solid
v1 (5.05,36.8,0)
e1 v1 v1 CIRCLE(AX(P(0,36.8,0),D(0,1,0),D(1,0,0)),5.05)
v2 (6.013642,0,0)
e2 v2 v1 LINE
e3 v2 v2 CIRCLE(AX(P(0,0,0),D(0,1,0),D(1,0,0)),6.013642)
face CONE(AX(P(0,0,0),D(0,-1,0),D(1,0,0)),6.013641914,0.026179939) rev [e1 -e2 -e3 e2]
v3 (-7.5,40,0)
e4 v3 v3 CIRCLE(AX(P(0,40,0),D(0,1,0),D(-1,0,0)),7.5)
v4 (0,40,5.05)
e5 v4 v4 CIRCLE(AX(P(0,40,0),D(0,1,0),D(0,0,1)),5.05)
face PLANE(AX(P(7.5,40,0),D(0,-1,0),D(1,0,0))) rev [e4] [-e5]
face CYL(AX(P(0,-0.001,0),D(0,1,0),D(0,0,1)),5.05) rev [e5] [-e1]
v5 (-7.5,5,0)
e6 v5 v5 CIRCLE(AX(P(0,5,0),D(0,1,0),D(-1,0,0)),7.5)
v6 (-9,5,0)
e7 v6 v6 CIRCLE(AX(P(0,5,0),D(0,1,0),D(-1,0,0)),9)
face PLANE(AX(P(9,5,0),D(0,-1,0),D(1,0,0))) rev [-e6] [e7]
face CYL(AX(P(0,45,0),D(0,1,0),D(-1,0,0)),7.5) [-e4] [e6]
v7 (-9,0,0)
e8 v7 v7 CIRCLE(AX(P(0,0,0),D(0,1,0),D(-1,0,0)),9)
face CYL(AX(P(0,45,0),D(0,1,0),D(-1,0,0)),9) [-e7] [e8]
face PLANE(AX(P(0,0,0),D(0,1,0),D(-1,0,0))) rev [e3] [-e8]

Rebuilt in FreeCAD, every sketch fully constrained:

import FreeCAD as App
import Part
import Sketcher
Q = App.Units.Quantity

doc = App.newDocument("Part")
params = doc.addObject("Spreadsheet::Sheet", "Params")
for row, (alias, value) in enumerate([
    ("sketch1_width", "9 mm"),
    ("sketch1_height", "5 mm"),
    ("sketch1_height2", "35 mm"),
    ("sketch1_width2", "1.5 mm"),
    ("revolution_angle", "360 deg"),
    ("sketch2_diameter", "10.1 mm"),
    ("sketch3_height", "36.8 mm"),
    ("sketch4_diameter", "10.1 mm"),
], start=1):
    params.set(f"A{row}", alias)
    params.set(f"B{row}", "=" + value)
    params.setAlias(f"B{row}", alias)

body = doc.addObject("PartDesign::Body", "Body")

# Sketch on XY plane
sketch1 = body.newObject("Sketcher::SketchObject", "Sketch")
sketch1.AttachmentSupport = (doc.getObject("XY_Plane"), [""])
sketch1.MapMode = "FlatFace"
sketch1.addGeometry([
    Part.LineSegment(App.Vector(0, 0, 0), App.Vector(9, 0, 0)),  # 0
    Part.LineSegment(App.Vector(9, 0, 0), App.Vector(9, 5, 0)),  # 1
    Part.LineSegment(App.Vector(9, 5, 0), App.Vector(7.5, 5, 0)),  # 2
    Part.LineSegment(App.Vector(7.5, 5, 0), App.Vector(7.5, 40, 0)),  # 3
    Part.LineSegment(App.Vector(7.5, 40, 0), App.Vector(0, 40, 0)),  # 4
    Part.LineSegment(App.Vector(0, 40, 0), App.Vector(0, 0, 0)),  # 5
], False)
sketch1.addConstraint([
    Sketcher.Constraint("Coincident", 0, 2, 1, 1),
    Sketcher.Constraint("Coincident", 1, 2, 2, 1),
    Sketcher.Constraint("Coincident", 2, 2, 3, 1),
    Sketcher.Constraint("Coincident", 3, 2, 4, 1),
    Sketcher.Constraint("Coincident", 4, 2, 5, 1),
    Sketcher.Constraint("Coincident", 5, 2, 0, 1),
    Sketcher.Constraint("Horizontal", 0),
    Sketcher.Constraint("Vertical", 1),
    Sketcher.Constraint("Horizontal", 2),
    Sketcher.Constraint("Vertical", 3),
    Sketcher.Constraint("Horizontal", 4),
    Sketcher.Constraint("Vertical", 5),
    Sketcher.Constraint("Coincident", 5, 2, -1, 1),
    Sketcher.Constraint("DistanceX", 0, 1, 0, 2, Q("9 mm")),
    Sketcher.Constraint("DistanceY", 1, 1, 1, 2, Q("5 mm")),
    Sketcher.Constraint("DistanceY", 3, 1, 3, 2, Q("35 mm")),
    Sketcher.Constraint("DistanceX", 2, 2, 2, 1, Q("1.5 mm")),
])
sketch1.setExpression("Constraints[13]", "Params.sketch1_width")
sketch1.setExpression("Constraints[14]", "Params.sketch1_height")
sketch1.setExpression("Constraints[15]", "Params.sketch1_height2")
sketch1.setExpression("Constraints[16]", "Params.sketch1_width2")
revolution = body.newObject("PartDesign::Revolution", "Revolution")
revolution.Profile = sketch1
revolution.ReferenceAxis = (sketch1, ["V_Axis"])
revolution.setExpression("Angle", "Params.revolution_angle")

# Sketch on XZ plane
sketch2 = body.newObject("Sketcher::SketchObject", "Sketch001")
sketch2.AttachmentSupport = (doc.getObject("XZ_Plane"), [""])
sketch2.MapMode = "FlatFace"
sketch2.AttachmentOffset = App.Placement(App.Vector(0, 0, -40), App.Rotation())
sketch2.addGeometry(Part.Circle(App.Vector(0, 0, 0), App.Vector(0, 0, 1), 5), False)
sketch2.addConstraint([
    Sketcher.Constraint("Coincident", 0, 3, -1, 1),
    Sketcher.Constraint("Diameter", 0, Q("10.1 mm")),
])
sketch2.setExpression("Constraints[1]", "Params.sketch2_diameter")
pocket1 = body.newObject("PartDesign::Pocket", "Pocket")
pocket1.Profile = sketch2
pocket1.Type = "UpToFirst"
pocket1.Reversed = True

# Sketch on XY plane
sketch3 = body.newObject("Sketcher::SketchObject", "Sketch002")
sketch3.AttachmentSupport = (doc.getObject("XY_Plane"), [""])
sketch3.MapMode = "FlatFace"
sketch3.addGeometry([
    Part.LineSegment(App.Vector(6, 0, 0), App.Vector(5, 36.8, 0)),
    Part.LineSegment(App.Vector(5, 36.8, 0), App.Vector(5, 0, 0)),
    Part.LineSegment(App.Vector(5, 0, 0), App.Vector(6, 0, 0)),
], False)
sketch3.addConstraint([
    Sketcher.Constraint("Coincident", 0, 2, 1, 1),
    Sketcher.Constraint("Coincident", 1, 2, 2, 1),
    Sketcher.Constraint("Coincident", 2, 2, 0, 1),
    Sketcher.Constraint("Vertical", 1),
    Sketcher.Constraint("Horizontal", 2),
    Sketcher.Constraint("PointOnObject", 1, 2, -1),
    Sketcher.Constraint("DistanceY", 1, 2, 1, 1, Q("36.8 mm")),
    Sketcher.Constraint("Angle", 0, Q("91.5 deg")),
    Sketcher.Constraint("DistanceX", -1, 1, 0, 2, Q("5.05 mm")),
])
sketch3.setExpression("Constraints[6]", "Params.sketch3_height")

# Sketch on XZ plane
sketch4 = body.newObject("Sketcher::SketchObject", "Sketch003")
sketch4.AttachmentSupport = (doc.getObject("XZ_Plane"), [""])
sketch4.MapMode = "FlatFace"
sketch4.AttachmentOffset = App.Placement(App.Vector(0, 0, -40), App.Rotation())
sketch4.addGeometry(Part.Circle(App.Vector(0, 0, 0), App.Vector(0, 0, 1), 5), False)
sketch4.addConstraint([
    Sketcher.Constraint("Coincident", 0, 3, -1, 1),
    Sketcher.Constraint("Diameter", 0, Q("10.1 mm")),
])
sketch4.setExpression("Constraints[1]", "Params.sketch4_diameter")
doc.recompute()

subtractivepipe = body.newObject("PartDesign::SubtractivePipe", "SubtractivePipe")
subtractivepipe.Profile = sketch3
subtractivepipe.Spine = (sketch4, ["Edge1"])

doc.recompute()
